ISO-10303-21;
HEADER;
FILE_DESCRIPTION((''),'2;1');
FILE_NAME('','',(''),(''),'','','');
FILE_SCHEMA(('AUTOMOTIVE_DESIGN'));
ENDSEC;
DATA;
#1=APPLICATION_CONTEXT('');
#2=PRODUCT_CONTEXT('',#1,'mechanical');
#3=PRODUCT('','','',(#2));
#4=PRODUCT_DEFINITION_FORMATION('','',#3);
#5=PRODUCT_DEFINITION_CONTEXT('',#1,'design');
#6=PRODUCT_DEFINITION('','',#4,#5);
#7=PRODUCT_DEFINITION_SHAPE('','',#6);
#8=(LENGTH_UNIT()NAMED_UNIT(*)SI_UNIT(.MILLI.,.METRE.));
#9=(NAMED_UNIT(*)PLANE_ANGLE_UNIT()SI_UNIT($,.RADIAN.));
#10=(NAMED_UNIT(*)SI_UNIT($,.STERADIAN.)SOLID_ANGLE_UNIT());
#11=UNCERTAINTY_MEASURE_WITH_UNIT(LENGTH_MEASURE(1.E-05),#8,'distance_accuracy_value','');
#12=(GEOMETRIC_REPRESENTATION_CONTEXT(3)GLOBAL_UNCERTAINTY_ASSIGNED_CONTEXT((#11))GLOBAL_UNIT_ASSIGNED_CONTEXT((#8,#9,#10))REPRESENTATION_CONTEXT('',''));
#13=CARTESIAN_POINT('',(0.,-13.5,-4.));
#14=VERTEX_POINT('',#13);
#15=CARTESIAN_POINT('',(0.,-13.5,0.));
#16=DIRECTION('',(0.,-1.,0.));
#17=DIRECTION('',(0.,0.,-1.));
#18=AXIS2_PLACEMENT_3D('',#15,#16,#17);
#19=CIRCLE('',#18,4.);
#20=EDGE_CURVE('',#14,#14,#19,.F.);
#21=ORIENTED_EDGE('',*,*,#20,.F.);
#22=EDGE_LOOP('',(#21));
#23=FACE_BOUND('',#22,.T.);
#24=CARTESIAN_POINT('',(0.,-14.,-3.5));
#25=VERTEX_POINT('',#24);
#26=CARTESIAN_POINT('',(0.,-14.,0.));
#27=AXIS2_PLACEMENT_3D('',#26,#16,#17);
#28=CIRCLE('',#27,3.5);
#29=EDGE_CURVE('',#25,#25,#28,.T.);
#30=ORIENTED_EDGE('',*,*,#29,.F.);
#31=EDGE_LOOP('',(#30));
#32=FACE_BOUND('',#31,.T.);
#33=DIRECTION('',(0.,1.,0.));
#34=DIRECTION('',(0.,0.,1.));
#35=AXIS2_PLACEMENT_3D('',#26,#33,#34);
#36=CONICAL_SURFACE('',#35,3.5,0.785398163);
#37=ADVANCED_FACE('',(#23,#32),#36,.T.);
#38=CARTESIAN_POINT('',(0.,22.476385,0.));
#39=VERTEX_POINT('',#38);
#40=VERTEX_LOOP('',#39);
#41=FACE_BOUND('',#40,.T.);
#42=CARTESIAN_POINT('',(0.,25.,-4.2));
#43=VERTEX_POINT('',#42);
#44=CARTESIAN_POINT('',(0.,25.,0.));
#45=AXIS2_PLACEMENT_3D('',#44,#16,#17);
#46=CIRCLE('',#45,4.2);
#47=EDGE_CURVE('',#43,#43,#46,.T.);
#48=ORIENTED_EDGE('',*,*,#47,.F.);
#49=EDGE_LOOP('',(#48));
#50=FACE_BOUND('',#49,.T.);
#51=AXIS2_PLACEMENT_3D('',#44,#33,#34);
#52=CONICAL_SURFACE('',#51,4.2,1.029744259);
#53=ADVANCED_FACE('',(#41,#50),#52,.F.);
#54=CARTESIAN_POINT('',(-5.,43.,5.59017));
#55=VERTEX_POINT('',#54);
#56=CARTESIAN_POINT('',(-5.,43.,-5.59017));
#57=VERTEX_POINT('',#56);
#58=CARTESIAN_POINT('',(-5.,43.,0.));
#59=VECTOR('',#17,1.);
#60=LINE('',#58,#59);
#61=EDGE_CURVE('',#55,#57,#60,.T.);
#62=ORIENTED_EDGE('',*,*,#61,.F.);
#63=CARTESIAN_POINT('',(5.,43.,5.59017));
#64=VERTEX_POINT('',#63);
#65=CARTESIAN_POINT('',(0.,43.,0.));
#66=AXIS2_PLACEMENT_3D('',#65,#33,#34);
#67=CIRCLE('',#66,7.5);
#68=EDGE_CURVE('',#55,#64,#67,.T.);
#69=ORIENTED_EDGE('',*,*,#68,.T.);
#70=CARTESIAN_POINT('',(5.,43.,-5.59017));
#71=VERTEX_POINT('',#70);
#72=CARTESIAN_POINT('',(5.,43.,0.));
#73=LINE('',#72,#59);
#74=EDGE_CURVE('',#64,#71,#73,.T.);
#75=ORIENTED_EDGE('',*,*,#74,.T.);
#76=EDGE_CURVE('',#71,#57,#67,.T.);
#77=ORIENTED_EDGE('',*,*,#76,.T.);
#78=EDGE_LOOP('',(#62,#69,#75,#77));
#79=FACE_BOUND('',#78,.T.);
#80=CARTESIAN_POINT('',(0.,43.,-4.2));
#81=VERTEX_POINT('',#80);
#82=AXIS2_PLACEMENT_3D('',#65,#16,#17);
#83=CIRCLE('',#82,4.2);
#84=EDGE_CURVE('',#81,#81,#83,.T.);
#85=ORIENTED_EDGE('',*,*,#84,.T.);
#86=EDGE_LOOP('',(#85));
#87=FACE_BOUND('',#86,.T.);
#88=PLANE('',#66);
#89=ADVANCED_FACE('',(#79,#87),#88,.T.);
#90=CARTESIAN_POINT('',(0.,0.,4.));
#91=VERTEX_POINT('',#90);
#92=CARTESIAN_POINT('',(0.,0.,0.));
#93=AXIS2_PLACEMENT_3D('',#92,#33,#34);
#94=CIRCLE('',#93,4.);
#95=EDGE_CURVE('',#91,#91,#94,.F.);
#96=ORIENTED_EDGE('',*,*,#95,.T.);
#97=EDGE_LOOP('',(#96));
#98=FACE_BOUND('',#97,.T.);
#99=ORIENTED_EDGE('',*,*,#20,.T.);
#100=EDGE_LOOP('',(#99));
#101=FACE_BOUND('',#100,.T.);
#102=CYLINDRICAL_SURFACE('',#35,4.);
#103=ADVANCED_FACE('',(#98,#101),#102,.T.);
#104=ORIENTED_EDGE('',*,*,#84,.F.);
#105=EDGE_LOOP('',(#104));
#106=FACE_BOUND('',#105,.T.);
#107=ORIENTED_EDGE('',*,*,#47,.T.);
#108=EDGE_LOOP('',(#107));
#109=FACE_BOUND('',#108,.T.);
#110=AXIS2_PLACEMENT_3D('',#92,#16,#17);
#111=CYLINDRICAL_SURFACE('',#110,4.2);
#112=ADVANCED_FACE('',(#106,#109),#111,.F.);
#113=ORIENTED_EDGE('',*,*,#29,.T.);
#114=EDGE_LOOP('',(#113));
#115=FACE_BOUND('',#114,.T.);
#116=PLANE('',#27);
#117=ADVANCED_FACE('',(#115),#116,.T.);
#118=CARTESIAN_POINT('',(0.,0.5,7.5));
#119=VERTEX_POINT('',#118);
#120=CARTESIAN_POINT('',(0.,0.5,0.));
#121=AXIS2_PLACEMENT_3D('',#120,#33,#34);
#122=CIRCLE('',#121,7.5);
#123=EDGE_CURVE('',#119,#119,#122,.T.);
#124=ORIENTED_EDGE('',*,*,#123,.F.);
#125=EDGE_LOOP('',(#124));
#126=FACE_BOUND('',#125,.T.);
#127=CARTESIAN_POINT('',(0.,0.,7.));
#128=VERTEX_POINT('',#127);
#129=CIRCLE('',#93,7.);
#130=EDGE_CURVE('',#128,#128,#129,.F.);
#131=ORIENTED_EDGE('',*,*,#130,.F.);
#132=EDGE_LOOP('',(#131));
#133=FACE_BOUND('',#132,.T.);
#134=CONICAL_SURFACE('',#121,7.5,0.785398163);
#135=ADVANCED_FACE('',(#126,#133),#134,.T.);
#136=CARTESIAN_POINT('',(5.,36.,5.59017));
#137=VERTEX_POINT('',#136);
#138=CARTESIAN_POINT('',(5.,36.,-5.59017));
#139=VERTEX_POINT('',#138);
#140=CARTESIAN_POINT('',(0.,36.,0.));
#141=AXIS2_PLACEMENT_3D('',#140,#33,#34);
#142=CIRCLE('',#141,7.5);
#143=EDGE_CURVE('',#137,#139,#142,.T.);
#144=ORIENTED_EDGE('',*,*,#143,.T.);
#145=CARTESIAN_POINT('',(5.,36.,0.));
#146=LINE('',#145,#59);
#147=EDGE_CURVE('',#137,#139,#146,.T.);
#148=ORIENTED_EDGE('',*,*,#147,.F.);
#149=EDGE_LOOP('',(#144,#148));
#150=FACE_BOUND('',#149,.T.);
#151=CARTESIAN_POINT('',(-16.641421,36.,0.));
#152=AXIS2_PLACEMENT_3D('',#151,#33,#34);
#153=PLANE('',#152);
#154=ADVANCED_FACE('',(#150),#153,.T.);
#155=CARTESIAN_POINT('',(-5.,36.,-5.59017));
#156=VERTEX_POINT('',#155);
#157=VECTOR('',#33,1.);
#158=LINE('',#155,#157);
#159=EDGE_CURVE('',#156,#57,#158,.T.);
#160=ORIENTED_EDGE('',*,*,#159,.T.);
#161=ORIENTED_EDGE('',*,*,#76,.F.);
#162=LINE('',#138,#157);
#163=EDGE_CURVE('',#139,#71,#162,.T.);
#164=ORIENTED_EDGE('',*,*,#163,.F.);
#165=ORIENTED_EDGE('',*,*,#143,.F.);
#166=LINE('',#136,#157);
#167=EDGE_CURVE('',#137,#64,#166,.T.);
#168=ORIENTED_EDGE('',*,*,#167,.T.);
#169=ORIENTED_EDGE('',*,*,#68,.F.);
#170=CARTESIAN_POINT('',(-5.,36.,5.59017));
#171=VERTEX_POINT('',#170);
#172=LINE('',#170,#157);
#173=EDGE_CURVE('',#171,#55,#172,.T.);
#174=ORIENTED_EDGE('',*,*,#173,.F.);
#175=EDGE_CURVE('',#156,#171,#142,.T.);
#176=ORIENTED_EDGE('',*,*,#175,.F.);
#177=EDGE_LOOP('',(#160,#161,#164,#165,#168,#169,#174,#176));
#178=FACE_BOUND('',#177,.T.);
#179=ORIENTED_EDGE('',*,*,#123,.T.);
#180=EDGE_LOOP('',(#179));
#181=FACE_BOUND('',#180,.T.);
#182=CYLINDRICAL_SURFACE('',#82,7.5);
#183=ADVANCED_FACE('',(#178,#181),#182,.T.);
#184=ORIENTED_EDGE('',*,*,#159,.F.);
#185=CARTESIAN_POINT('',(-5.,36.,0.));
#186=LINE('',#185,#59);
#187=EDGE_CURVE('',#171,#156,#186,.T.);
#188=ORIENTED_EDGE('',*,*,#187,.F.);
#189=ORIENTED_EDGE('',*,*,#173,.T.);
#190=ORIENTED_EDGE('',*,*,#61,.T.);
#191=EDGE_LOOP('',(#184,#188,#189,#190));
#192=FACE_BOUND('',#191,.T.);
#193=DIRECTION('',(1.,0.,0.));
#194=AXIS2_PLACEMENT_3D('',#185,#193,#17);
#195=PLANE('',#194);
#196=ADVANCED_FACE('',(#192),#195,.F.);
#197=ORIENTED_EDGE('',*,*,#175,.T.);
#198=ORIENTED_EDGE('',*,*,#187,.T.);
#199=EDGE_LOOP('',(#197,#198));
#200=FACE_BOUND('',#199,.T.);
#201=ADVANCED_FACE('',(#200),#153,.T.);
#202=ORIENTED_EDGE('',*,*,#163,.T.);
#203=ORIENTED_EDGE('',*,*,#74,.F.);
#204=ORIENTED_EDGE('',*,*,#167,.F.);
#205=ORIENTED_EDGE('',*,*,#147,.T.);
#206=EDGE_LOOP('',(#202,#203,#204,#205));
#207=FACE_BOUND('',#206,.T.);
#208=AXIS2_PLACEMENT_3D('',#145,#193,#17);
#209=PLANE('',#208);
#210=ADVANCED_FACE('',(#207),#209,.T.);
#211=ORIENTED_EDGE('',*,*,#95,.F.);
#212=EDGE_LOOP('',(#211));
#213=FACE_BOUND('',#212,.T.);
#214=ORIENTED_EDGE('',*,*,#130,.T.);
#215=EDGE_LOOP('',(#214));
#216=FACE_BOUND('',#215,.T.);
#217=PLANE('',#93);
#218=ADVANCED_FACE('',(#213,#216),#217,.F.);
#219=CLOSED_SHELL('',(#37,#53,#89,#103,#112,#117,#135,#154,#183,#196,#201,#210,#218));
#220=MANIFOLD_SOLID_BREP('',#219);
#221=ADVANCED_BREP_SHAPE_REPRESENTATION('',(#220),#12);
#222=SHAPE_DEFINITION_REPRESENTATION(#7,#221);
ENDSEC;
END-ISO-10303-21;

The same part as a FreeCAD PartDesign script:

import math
import FreeCAD as App
import Part
import Sketcher
Q = App.Units.Quantity


def edges_at(feature, points):
    """Names of the edges that pass closest to the given points."""
    edges = feature.Shape.Edges
    near = lambda p: min(range(len(edges)), key=lambda i: edges[i].distToShape(Part.Vertex(*p))[0])
    return sorted({f"Edge{near(p) + 1}" for p in points})


def add_polygon(sketch, points):
    """Adds a closed chain of lines whose ends are joined by coincident constraints."""
    first, n = sketch.GeometryCount, len(points)
    for a, b in zip(points, points[1:] + points[:1]):
        sketch.addGeometry(Part.LineSegment(App.Vector(*a, 0), App.Vector(*b, 0)), False)
    for i in range(n):
        sketch.addConstraint(Sketcher.Constraint("Coincident", first + i, 2, first + (i + 1) % n, 1))

doc = App.newDocument("Part")
body = doc.addObject("PartDesign::Body", "Body")

sketch1 = body.newObject("Sketcher::SketchObject", "Sketch")
sketch1.AttachmentSupport = (doc.getObject("XZ_Plane"), [""])
sketch1.MapMode = "FlatFace"
sketch1.addGeometry(Part.Circle(App.Vector(0, 0, 0), App.Vector(0, 0, 1), 8), False)
sketch1.addConstraint(Sketcher.Constraint("Coincident", 0, 3, -1, 1))
sketch1.addConstraint(Sketcher.Constraint("Diameter", 0, Q("15 mm")))
pad1 = body.newObject("PartDesign::Pad", "Pad")
pad1.Profile = sketch1
pad1.Length = 43
pad1.Reversed = True

sketch2 = body.newObject("Sketcher::SketchObject", "Sketch001")
sketch2.AttachmentSupport = (doc.getObject("XZ_Plane"), [""])
sketch2.MapMode = "FlatFace"
sketch2.addGeometry(Part.Circle(App.Vector(0, 0, 0), App.Vector(0, 0, 1), 4), False)
sketch2.addConstraint(Sketcher.Constraint("Coincident", 0, 3, -1, 1))
sketch2.addConstraint(Sketcher.Constraint("Diameter", 0, Q("8 mm")))
pad2 = body.newObject("PartDesign::Pad", "Pad001")
pad2.Profile = sketch2
pad2.Length = 14

sketch3 = body.newObject("Sketcher::SketchObject", "Sketch002")
sketch3.AttachmentSupport = (doc.getObject("XZ_Plane"), [""])
sketch3.MapMode = "FlatFace"
sketch3.AttachmentOffset = App.Placement(App.Vector(0, 0, -36), App.Rotation())
sketch3.addGeometry(Part.LineSegment(App.Vector(5, -6, 0), App.Vector(5, 6, 0)), False)
sketch3.addGeometry(Part.ArcOfCircle(Part.Circle(App.Vector(0, 0, 0), App.Vector(0, 0, 1), 8), math.radians(-48), math.radians(48)), False)
sketch3.addGeometry(Part.ArcOfCircle(Part.Circle(App.Vector(0, 0, 0), App.Vector(0, 0, 1), 8), math.radians(132), math.radians(180)), False)
sketch3.addGeometry(Part.LineSegment(App.Vector(-5, 6, 0), App.Vector(-5, -6, 0)), False)
sketch3.addGeometry(Part.ArcOfCircle(Part.Circle(App.Vector(0, 0, 0), App.Vector(0, 0, 1), 8), math.radians(180), math.radians(228)), False)
sketch3.addConstraint(Sketcher.Constraint("Coincident", 0, 1, 1, 1))
sketch3.addConstraint(Sketcher.Constraint("Coincident", 1, 2, 0, 2))
sketch3.addConstraint(Sketcher.Constraint("Coincident", 2, 1, 3, 1))
sketch3.addConstraint(Sketcher.Constraint("Coincident", 3, 2, 4, 2))
sketch3.addConstraint(Sketcher.Constraint("Tangent", 4, 1, 2, 2))
sketch3.addConstraint(Sketcher.Constraint("Vertical", 0))
sketch3.addConstraint(Sketcher.Constraint("Vertical", 3))
sketch3.addConstraint(Sketcher.Constraint("Coincident", 1, 3, -1, 1))
sketch3.addConstraint(Sketcher.Constraint("Coincident", 2, 3, -1, 1))
sketch3.addConstraint(Sketcher.Constraint("Equal", 1, 2))
sketch3.addConstraint(Sketcher.Constraint("Equal", 2, 4))
sketch3.addConstraint(Sketcher.Constraint("PointOnObject", 4, 1, -1))
sketch3.addConstraint(Sketcher.Constraint("Horizontal", 1, 2, 2, 1))
sketch3.addConstraint(Sketcher.Constraint("Radius", 1, Q("7.5 mm")))
sketch3.addConstraint(Sketcher.Constraint("DistanceX", -1, 1, 0, 1, Q("5 mm")))
pocket1 = body.newObject("PartDesign::Pocket", "Pocket")
pocket1.Profile = sketch3
pocket1.Length = 7
doc.recompute()

chamfer = body.newObject("PartDesign::Chamfer", "Chamfer")
chamfer.Base = (pocket1, edges_at(pocket1, [(0, 0, -7.5), (0, -14, -4)]))
chamfer.Size = 0.5

sketch4 = body.newObject("Sketcher::SketchObject", "Sketch003")
sketch4.AttachmentSupport = (doc.getObject("XY_Plane"), [""])
sketch4.MapMode = "FlatFace"
add_polygon(sketch4, [(4.2, 43), (0, 43), (0, 22.5), (4.2, 25)])
sketch4.addConstraint(Sketcher.Constraint("Horizontal", 0))
sketch4.addConstraint(Sketcher.Constraint("Vertical", 1))
sketch4.addConstraint(Sketcher.Constraint("Vertical", 3))
sketch4.addConstraint(Sketcher.Constraint("PointOnObject", 0, 2, -2))
sketch4.addConstraint(Sketcher.Constraint("DistanceY", 3, 1, 3, 2, Q("18 mm")))
sketch4.addConstraint(Sketcher.Constraint("Angle", 2, Q("31 deg")))
sketch4.addConstraint(Sketcher.Constraint("DistanceX", 0, 2, 0, 1, Q("4.2 mm")))
sketch4.addConstraint(Sketcher.Constraint("DistanceY", -1, 1, 0, 2, Q("43 mm")))
groove = body.newObject("PartDesign::Groove", "Groove")
groove.Profile = sketch4
groove.ReferenceAxis = (sketch4, ["V_Axis"])
groove.Angle = 360

doc.recompute()
